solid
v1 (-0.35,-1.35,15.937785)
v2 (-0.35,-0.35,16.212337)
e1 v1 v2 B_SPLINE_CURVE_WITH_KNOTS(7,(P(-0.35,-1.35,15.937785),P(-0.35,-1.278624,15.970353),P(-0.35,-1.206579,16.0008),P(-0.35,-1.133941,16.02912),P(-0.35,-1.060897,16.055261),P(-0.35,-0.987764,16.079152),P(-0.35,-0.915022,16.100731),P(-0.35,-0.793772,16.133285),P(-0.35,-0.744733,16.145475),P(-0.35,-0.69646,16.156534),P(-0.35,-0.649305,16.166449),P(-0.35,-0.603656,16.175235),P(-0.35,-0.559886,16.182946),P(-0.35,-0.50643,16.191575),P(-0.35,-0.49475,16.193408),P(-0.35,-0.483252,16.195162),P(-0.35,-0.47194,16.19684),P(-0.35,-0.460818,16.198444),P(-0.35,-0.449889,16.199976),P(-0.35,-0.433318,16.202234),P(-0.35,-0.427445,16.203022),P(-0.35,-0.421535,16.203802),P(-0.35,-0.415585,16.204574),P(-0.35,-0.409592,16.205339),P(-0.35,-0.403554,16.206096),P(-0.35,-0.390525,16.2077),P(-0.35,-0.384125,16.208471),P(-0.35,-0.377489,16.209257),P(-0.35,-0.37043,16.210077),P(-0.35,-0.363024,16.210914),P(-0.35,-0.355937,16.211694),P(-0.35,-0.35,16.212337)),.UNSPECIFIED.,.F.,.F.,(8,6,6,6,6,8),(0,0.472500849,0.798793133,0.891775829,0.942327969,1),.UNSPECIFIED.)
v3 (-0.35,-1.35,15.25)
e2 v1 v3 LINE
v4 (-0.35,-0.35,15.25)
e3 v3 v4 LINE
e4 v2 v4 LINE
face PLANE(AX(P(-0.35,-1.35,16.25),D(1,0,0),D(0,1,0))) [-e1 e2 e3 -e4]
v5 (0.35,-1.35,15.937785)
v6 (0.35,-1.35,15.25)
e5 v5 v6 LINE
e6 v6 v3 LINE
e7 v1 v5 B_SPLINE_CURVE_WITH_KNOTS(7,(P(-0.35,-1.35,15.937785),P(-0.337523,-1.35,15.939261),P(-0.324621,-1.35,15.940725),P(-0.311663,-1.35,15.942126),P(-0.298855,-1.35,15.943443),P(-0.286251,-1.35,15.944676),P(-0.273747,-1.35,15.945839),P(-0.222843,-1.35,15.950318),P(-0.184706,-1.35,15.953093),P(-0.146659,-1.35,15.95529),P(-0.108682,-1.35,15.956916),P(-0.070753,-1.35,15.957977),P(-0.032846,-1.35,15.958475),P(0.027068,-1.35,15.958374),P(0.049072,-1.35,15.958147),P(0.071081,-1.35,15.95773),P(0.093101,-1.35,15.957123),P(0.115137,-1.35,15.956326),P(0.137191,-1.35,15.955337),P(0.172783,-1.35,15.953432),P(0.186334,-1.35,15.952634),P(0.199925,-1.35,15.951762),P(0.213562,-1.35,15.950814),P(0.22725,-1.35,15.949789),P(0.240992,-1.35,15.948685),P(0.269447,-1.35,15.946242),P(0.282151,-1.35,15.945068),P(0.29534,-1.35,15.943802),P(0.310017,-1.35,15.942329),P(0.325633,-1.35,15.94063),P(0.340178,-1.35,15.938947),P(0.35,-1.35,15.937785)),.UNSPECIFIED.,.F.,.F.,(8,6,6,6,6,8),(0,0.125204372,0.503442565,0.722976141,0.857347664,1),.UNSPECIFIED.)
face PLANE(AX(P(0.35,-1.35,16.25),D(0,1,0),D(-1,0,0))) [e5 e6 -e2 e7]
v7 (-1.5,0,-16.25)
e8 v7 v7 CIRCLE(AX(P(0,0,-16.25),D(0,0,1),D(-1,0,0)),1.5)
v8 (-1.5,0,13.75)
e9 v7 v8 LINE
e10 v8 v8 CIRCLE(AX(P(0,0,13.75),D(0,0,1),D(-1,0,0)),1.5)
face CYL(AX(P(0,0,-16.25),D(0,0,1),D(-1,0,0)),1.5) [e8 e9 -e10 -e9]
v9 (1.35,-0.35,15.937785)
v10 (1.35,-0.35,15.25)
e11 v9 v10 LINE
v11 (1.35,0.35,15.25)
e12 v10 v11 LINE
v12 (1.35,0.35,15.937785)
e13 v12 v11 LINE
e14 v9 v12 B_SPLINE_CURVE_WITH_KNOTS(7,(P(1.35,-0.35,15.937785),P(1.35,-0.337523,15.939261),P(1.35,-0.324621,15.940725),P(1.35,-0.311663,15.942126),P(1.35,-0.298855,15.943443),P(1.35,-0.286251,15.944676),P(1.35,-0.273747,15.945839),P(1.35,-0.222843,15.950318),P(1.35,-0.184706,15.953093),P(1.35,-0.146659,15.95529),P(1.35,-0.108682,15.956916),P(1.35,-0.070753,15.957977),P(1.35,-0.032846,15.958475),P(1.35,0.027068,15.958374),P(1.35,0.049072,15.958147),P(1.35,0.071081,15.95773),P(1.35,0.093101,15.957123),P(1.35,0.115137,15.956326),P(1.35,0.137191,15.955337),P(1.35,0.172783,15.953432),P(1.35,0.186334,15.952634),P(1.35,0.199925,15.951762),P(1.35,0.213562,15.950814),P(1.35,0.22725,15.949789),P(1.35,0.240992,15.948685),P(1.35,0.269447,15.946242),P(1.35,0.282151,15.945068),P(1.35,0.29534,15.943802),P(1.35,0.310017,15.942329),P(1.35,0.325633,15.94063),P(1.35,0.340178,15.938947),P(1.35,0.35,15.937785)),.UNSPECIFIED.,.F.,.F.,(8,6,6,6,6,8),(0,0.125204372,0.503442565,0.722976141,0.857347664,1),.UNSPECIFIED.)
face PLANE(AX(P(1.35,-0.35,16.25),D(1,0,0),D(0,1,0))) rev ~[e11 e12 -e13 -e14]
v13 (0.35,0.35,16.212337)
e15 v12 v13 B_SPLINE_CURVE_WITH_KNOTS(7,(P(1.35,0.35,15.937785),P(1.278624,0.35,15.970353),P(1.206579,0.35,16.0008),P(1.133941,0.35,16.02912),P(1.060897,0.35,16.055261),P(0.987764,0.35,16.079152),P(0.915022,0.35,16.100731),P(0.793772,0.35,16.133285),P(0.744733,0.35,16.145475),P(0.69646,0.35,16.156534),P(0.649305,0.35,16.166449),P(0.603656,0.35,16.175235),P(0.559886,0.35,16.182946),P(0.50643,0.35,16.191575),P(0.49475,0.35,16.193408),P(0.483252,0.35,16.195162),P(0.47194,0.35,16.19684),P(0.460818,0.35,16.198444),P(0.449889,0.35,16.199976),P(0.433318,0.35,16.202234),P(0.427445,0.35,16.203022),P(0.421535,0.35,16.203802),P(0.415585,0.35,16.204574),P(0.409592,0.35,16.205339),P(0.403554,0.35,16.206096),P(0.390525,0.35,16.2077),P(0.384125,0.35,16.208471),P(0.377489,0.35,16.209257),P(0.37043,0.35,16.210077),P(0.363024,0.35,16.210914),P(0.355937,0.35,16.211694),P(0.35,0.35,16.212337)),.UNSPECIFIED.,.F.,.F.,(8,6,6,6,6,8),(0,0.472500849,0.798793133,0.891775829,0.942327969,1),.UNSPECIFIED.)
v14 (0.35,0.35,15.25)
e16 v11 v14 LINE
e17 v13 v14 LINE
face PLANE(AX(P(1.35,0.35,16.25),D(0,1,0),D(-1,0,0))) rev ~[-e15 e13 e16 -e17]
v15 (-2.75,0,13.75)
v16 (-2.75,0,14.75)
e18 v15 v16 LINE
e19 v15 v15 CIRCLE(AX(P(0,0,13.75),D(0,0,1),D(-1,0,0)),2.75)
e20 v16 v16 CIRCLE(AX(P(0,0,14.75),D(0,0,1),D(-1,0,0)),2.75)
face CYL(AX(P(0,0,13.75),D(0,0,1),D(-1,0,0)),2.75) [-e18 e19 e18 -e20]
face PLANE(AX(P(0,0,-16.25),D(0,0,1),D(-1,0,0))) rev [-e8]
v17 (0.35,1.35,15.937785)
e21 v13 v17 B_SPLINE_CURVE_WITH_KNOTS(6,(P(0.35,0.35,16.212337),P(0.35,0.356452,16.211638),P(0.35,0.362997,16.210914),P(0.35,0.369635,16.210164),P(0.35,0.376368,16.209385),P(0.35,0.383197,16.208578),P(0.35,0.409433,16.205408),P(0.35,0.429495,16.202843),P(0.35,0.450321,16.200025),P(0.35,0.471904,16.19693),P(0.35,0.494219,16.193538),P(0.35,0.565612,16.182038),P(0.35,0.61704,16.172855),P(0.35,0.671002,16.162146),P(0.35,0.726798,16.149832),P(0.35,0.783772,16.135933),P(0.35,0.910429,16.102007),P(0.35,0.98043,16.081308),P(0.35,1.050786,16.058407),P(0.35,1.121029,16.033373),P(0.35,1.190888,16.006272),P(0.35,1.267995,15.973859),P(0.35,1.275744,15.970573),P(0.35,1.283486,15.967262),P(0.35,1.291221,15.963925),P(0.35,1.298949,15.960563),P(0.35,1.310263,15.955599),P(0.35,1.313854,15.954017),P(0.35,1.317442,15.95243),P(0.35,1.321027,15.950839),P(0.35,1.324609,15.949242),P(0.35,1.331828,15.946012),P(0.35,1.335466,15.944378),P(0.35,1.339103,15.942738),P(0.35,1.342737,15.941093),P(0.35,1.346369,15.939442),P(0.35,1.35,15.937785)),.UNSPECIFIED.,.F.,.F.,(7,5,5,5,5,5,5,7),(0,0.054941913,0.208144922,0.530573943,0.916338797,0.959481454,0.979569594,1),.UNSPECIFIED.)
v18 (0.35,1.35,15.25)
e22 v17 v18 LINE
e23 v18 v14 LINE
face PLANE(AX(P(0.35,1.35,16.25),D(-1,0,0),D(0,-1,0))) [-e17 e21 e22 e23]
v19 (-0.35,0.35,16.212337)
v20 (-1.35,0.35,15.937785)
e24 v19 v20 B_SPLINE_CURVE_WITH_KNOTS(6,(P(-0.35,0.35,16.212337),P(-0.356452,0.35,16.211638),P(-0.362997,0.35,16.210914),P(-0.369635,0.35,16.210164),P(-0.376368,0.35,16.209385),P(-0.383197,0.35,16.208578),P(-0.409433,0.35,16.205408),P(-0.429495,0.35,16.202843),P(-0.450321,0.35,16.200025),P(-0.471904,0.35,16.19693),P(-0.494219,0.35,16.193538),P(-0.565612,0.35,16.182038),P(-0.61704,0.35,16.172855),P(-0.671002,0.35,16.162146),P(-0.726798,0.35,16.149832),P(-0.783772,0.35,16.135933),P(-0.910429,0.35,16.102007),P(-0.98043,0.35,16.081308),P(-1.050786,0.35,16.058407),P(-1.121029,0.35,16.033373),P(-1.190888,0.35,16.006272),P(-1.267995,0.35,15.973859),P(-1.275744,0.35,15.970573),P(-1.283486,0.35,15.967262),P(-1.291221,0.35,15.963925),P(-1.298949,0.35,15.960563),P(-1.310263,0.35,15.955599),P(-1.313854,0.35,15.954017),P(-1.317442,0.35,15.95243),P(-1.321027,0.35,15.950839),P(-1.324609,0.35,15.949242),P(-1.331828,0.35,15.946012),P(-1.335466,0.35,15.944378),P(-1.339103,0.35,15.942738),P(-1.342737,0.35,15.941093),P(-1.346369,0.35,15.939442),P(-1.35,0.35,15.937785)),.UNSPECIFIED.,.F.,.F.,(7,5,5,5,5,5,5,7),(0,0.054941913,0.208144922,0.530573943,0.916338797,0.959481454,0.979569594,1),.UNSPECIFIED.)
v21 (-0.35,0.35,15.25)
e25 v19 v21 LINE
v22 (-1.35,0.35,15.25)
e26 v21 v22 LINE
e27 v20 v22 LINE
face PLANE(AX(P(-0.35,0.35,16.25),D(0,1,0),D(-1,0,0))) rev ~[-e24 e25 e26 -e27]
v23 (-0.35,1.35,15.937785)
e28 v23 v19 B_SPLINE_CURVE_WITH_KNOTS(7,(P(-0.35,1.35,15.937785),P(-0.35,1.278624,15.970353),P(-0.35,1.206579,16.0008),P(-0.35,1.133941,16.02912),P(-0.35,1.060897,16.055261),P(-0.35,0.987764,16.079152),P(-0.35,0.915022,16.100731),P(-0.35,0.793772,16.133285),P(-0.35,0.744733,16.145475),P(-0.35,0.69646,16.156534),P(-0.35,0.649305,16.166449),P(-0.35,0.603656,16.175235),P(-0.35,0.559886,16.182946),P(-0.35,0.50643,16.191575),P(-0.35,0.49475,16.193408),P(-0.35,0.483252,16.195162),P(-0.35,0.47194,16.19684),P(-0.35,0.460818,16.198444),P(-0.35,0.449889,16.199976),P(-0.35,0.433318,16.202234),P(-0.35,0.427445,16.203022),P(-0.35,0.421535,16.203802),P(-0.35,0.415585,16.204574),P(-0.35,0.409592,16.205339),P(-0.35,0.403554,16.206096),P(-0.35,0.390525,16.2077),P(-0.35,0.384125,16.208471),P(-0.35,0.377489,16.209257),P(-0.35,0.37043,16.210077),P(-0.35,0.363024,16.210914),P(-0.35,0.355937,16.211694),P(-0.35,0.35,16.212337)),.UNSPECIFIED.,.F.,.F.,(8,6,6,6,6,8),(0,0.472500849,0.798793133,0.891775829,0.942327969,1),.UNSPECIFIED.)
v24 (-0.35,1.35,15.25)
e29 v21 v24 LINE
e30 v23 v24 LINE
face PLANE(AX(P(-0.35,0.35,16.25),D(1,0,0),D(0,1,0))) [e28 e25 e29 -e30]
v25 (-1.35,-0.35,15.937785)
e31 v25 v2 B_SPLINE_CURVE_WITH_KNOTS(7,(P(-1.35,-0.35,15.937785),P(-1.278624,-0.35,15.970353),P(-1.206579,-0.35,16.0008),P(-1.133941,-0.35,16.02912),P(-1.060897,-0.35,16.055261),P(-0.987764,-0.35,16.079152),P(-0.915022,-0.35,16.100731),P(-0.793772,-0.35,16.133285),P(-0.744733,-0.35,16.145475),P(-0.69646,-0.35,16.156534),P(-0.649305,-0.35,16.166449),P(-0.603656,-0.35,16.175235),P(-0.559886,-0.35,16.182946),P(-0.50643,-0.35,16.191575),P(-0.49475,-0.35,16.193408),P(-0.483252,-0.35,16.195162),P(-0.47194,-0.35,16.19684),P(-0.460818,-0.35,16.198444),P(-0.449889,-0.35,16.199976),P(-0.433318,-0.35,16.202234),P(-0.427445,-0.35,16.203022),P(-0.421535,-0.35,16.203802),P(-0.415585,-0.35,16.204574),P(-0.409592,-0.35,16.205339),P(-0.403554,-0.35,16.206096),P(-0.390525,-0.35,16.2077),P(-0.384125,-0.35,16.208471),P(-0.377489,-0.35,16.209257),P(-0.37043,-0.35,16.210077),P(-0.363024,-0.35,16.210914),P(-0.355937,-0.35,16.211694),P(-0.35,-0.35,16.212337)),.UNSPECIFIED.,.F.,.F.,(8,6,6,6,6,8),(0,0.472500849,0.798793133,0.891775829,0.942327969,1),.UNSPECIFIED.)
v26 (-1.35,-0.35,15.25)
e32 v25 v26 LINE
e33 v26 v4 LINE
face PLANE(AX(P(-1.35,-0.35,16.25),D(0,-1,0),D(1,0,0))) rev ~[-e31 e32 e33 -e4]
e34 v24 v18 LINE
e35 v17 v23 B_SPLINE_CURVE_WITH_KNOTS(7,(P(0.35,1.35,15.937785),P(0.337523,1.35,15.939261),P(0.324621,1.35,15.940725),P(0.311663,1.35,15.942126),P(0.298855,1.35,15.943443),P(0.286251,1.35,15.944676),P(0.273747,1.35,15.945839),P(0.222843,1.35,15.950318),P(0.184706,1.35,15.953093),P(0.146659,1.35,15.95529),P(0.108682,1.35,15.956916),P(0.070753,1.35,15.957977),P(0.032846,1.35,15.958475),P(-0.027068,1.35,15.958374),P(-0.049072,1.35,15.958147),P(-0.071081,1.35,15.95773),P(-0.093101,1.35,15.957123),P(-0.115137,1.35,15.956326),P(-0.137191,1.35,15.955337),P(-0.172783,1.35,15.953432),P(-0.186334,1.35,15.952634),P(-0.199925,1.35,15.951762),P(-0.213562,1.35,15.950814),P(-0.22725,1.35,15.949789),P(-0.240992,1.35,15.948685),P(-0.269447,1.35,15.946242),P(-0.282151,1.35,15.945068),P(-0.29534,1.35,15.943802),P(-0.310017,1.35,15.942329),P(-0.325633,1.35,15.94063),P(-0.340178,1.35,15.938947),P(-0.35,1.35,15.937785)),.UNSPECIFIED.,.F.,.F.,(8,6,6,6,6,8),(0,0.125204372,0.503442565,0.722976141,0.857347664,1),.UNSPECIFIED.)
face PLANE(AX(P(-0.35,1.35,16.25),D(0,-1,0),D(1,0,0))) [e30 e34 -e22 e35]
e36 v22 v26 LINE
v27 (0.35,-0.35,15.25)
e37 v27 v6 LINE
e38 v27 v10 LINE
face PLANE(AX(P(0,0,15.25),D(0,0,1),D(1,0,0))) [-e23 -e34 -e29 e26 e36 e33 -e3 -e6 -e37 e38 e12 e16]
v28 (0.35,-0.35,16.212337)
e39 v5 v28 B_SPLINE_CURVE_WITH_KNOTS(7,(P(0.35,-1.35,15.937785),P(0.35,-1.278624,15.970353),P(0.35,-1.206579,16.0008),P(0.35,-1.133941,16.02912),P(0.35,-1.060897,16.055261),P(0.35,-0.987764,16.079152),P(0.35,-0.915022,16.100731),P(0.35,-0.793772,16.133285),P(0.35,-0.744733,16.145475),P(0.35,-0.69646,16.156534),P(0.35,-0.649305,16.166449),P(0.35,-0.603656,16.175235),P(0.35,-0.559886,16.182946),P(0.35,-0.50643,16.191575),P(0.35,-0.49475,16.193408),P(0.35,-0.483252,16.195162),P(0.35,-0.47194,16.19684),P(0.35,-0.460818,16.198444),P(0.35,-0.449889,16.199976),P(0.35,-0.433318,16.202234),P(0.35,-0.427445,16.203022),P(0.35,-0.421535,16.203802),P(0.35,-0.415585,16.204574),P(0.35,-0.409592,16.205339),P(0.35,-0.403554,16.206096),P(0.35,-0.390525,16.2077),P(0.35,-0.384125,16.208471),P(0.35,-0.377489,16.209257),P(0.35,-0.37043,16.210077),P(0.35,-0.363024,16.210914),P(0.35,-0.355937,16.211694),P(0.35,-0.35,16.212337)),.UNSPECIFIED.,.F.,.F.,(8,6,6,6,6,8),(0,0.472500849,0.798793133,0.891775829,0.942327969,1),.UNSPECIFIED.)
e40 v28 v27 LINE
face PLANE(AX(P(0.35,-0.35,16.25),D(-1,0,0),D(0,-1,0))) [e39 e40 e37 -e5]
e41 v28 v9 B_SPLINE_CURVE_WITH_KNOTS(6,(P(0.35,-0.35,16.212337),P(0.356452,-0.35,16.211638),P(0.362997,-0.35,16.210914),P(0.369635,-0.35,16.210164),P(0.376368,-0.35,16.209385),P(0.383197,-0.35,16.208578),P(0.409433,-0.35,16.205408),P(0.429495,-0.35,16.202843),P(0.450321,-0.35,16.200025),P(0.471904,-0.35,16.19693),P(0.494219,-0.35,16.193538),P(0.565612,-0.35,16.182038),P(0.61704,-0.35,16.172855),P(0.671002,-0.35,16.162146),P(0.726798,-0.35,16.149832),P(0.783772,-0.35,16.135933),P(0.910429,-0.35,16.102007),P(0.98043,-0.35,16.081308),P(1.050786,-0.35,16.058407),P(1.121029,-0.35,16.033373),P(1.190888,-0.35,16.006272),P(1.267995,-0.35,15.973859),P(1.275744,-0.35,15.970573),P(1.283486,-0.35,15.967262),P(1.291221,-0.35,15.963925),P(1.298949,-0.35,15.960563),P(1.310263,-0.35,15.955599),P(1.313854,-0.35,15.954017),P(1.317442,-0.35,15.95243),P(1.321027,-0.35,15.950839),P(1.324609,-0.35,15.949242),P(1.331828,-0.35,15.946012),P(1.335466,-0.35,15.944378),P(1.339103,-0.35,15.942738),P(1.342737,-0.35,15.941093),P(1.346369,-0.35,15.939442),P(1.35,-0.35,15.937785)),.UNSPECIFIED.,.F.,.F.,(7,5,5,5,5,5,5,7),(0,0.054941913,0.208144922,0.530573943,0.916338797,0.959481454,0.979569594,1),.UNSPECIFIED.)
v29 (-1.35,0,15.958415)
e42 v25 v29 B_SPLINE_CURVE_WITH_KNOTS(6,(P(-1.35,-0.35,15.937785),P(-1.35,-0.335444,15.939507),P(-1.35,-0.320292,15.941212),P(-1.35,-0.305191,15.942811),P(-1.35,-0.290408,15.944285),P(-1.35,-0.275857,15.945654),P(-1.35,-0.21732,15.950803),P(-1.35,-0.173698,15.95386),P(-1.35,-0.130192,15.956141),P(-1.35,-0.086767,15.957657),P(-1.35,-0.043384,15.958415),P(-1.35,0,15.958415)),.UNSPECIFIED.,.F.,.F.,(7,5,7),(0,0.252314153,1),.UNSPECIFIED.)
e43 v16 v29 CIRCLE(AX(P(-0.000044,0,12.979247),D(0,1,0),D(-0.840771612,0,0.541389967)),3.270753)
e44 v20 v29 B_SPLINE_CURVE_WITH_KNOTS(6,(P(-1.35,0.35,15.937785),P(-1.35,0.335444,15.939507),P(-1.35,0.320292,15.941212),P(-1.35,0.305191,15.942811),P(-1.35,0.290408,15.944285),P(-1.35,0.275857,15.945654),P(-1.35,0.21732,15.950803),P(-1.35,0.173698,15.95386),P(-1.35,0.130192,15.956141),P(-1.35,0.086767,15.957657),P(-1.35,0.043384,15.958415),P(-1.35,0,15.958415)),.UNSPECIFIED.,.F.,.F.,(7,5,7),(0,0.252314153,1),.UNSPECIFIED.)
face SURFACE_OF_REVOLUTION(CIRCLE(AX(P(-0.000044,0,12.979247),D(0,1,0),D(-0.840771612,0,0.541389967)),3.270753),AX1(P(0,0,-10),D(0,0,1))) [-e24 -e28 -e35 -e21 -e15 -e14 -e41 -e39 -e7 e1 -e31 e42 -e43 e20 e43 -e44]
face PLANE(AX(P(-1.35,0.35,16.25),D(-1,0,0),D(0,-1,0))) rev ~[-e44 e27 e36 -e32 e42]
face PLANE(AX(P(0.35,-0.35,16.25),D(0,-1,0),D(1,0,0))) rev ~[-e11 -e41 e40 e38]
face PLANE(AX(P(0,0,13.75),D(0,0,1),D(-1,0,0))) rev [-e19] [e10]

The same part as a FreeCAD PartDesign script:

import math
import FreeCAD as App
import Part
import Sketcher
from FreeCAD import Vector
Q = App.Units.Quantity


def add_polygon(sketch, points):
    """Adds a closed chain of lines whose ends are joined by coincident constraints."""
    first, n = sketch.GeometryCount, len(points)
    for a, b in zip(points, points[1:] + points[:1]):
        sketch.addGeometry(Part.LineSegment(App.Vector(*a, 0), App.Vector(*b, 0)), False)
    for i in range(n):
        sketch.addConstraint(Sketcher.Constraint("Coincident", first + i, 2, first + (i + 1) % n, 1))

doc = App.newDocument("Part")
body = doc.addObject("PartDesign::Body", "Body")

# Sketch on XZ plane
sketch1 = body.newObject("Sketcher::SketchObject", "Sketch")
sketch1.AttachmentSupport = (doc.getObject("XZ_Plane"), [""])
sketch1.MapMode = "FlatFace"
sketch1.addGeometry(Part.LineSegment(Vector(0, -16.2, 0), Vector(-1.5, -16.2, 0)), False)
sketch1.addGeometry(Part.LineSegment(Vector(-1.5, -16.2, 0), Vector(-1.5, 13.8, 0)), False)
sketch1.addGeometry(Part.LineSegment(Vector(-1.5, 13.8, 0), Vector(-2.8, 13.8, 0)), False)
sketch1.addGeometry(Part.LineSegment(Vector(-2.8, 13.8, 0), Vector(-2.8, 14.8, 0)), False)
sketch1.addGeometry(Part.ArcOfCircle(Part.Circle(Vector(0, 13, 0), Vector(0, 0, 1), 3.3), math.radians(90), math.radians(147)), False)
sketch1.addGeometry(Part.LineSegment(Vector(0, 16.2, 0), Vector(0, -16.2, 0)), False)
sketch1.addConstraint(Sketcher.Constraint("Coincident", 0, 2, 1, 1))
sketch1.addConstraint(Sketcher.Constraint("Coincident", 1, 2, 2, 1))
sketch1.addConstraint(Sketcher.Constraint("Coincident", 2, 2, 3, 1))
sketch1.addConstraint(Sketcher.Constraint("Coincident", 3, 2, 4, 2))
sketch1.addConstraint(Sketcher.Constraint("Coincident", 4, 1, 5, 1))
sketch1.addConstraint(Sketcher.Constraint("Coincident", 5, 2, 0, 1))
sketch1.addConstraint(Sketcher.Constraint("Horizontal", 0))
sketch1.addConstraint(Sketcher.Constraint("Vertical", 1))
sketch1.addConstraint(Sketcher.Constraint("Horizontal", 2))
sketch1.addConstraint(Sketcher.Constraint("Vertical", 3))
sketch1.addConstraint(Sketcher.Constraint("Vertical", 5))
sketch1.addConstraint(Sketcher.Constraint("Symmetric", 4, 1, 5, 2, -1, 1))
sketch1.addConstraint(Sketcher.Constraint("PointOnObject", 4, 3, -2))
sketch1.addConstraint(Sketcher.Constraint("DistanceY", 1, 1, 1, 2, Q("30 mm")))
sketch1.addConstraint(Sketcher.Constraint("DistanceY", 3, 1, 3, 2, Q("1 mm")))
sketch1.addConstraint(Sketcher.Constraint("DistanceY", 1, 2, 4, 1, Q("2.5 mm")))
sketch1.addConstraint(Sketcher.Constraint("DistanceX", 0, 2, 0, 1, Q("1.5 mm")))
sketch1.addConstraint(Sketcher.Constraint("DistanceX", 2, 2, 2, 1, Q("1.25 mm")))
revolution = body.newObject("PartDesign::Revolution", "Revolution")
revolution.Profile = sketch1
revolution.ReferenceAxis = (sketch1, ["V_Axis"])
revolution.Angle = 360

# Sketch on XY plane
sketch2 = body.newObject("Sketcher::SketchObject", "Sketch001")
sketch2.AttachmentSupport = (doc.getObject("XY_Plane"), [""])
sketch2.MapMode = "FlatFace"
sketch2.AttachmentOffset = App.Placement(Vector(0, 0, 16.25), App.Rotation())
add_polygon(sketch2, [(-1.4, 0.3), (-1.4, -0.3), (-0.3, -0.3), (-0.3, -1.4), (0.3, -1.4), (0.3, -0.3), (1.4, -0.3), (1.4, 0.3), (0.3, 0.3), (0.3, 1.4), (-0.3, 1.4), (-0.3, 0.3)])  # lines 0-11
sketch2.addConstraint(Sketcher.Constraint("Vertical", 0))
sketch2.addConstraint(Sketcher.Constraint("Horizontal", 1))
sketch2.addConstraint(Sketcher.Constraint("Vertical", 2))
sketch2.addConstraint(Sketcher.Constraint("Horizontal", 3))
sketch2.addConstraint(Sketcher.Constraint("Vertical", 4))
sketch2.addConstraint(Sketcher.Constraint("Horizontal", 5))
sketch2.addConstraint(Sketcher.Constraint("Vertical", 6))
sketch2.addConstraint(Sketcher.Constraint("Horizontal", 7))
sketch2.addConstraint(Sketcher.Constraint("Vertical", 8))
sketch2.addConstraint(Sketcher.Constraint("Horizontal", 9))
sketch2.addConstraint(Sketcher.Constraint("Vertical", 10))
sketch2.addConstraint(Sketcher.Constraint("Horizontal", 11))
sketch2.addConstraint(Sketcher.Constraint("Symmetric", 0, 2, 6, 2, -1, 1))
sketch2.addConstraint(Sketcher.Constraint("Symmetric", 2, 2, 8, 2, -1, 1))
sketch2.addConstraint(Sketcher.Constraint("Symmetric", 4, 2, 10, 2, -1, 1))
sketch2.addConstraint(Sketcher.Constraint("Symmetric", 1, 2, 4, 2, -2))
sketch2.addConstraint(Sketcher.Constraint("Equal", 9, 0))
sketch2.addConstraint(Sketcher.Constraint("Equal", 11, 2))
sketch2.addConstraint(Sketcher.Constraint("DistanceX", 3, 1, 3, 2, Q("0.7 mm")))
sketch2.addConstraint(Sketcher.Constraint("DistanceX", 0, 2, 5, 2, Q("2.7 mm")))
pocket1 = body.newObject("PartDesign::Pocket", "Pocket")
pocket1.Profile = sketch2
pocket1.Length = 1

doc.recompute()
